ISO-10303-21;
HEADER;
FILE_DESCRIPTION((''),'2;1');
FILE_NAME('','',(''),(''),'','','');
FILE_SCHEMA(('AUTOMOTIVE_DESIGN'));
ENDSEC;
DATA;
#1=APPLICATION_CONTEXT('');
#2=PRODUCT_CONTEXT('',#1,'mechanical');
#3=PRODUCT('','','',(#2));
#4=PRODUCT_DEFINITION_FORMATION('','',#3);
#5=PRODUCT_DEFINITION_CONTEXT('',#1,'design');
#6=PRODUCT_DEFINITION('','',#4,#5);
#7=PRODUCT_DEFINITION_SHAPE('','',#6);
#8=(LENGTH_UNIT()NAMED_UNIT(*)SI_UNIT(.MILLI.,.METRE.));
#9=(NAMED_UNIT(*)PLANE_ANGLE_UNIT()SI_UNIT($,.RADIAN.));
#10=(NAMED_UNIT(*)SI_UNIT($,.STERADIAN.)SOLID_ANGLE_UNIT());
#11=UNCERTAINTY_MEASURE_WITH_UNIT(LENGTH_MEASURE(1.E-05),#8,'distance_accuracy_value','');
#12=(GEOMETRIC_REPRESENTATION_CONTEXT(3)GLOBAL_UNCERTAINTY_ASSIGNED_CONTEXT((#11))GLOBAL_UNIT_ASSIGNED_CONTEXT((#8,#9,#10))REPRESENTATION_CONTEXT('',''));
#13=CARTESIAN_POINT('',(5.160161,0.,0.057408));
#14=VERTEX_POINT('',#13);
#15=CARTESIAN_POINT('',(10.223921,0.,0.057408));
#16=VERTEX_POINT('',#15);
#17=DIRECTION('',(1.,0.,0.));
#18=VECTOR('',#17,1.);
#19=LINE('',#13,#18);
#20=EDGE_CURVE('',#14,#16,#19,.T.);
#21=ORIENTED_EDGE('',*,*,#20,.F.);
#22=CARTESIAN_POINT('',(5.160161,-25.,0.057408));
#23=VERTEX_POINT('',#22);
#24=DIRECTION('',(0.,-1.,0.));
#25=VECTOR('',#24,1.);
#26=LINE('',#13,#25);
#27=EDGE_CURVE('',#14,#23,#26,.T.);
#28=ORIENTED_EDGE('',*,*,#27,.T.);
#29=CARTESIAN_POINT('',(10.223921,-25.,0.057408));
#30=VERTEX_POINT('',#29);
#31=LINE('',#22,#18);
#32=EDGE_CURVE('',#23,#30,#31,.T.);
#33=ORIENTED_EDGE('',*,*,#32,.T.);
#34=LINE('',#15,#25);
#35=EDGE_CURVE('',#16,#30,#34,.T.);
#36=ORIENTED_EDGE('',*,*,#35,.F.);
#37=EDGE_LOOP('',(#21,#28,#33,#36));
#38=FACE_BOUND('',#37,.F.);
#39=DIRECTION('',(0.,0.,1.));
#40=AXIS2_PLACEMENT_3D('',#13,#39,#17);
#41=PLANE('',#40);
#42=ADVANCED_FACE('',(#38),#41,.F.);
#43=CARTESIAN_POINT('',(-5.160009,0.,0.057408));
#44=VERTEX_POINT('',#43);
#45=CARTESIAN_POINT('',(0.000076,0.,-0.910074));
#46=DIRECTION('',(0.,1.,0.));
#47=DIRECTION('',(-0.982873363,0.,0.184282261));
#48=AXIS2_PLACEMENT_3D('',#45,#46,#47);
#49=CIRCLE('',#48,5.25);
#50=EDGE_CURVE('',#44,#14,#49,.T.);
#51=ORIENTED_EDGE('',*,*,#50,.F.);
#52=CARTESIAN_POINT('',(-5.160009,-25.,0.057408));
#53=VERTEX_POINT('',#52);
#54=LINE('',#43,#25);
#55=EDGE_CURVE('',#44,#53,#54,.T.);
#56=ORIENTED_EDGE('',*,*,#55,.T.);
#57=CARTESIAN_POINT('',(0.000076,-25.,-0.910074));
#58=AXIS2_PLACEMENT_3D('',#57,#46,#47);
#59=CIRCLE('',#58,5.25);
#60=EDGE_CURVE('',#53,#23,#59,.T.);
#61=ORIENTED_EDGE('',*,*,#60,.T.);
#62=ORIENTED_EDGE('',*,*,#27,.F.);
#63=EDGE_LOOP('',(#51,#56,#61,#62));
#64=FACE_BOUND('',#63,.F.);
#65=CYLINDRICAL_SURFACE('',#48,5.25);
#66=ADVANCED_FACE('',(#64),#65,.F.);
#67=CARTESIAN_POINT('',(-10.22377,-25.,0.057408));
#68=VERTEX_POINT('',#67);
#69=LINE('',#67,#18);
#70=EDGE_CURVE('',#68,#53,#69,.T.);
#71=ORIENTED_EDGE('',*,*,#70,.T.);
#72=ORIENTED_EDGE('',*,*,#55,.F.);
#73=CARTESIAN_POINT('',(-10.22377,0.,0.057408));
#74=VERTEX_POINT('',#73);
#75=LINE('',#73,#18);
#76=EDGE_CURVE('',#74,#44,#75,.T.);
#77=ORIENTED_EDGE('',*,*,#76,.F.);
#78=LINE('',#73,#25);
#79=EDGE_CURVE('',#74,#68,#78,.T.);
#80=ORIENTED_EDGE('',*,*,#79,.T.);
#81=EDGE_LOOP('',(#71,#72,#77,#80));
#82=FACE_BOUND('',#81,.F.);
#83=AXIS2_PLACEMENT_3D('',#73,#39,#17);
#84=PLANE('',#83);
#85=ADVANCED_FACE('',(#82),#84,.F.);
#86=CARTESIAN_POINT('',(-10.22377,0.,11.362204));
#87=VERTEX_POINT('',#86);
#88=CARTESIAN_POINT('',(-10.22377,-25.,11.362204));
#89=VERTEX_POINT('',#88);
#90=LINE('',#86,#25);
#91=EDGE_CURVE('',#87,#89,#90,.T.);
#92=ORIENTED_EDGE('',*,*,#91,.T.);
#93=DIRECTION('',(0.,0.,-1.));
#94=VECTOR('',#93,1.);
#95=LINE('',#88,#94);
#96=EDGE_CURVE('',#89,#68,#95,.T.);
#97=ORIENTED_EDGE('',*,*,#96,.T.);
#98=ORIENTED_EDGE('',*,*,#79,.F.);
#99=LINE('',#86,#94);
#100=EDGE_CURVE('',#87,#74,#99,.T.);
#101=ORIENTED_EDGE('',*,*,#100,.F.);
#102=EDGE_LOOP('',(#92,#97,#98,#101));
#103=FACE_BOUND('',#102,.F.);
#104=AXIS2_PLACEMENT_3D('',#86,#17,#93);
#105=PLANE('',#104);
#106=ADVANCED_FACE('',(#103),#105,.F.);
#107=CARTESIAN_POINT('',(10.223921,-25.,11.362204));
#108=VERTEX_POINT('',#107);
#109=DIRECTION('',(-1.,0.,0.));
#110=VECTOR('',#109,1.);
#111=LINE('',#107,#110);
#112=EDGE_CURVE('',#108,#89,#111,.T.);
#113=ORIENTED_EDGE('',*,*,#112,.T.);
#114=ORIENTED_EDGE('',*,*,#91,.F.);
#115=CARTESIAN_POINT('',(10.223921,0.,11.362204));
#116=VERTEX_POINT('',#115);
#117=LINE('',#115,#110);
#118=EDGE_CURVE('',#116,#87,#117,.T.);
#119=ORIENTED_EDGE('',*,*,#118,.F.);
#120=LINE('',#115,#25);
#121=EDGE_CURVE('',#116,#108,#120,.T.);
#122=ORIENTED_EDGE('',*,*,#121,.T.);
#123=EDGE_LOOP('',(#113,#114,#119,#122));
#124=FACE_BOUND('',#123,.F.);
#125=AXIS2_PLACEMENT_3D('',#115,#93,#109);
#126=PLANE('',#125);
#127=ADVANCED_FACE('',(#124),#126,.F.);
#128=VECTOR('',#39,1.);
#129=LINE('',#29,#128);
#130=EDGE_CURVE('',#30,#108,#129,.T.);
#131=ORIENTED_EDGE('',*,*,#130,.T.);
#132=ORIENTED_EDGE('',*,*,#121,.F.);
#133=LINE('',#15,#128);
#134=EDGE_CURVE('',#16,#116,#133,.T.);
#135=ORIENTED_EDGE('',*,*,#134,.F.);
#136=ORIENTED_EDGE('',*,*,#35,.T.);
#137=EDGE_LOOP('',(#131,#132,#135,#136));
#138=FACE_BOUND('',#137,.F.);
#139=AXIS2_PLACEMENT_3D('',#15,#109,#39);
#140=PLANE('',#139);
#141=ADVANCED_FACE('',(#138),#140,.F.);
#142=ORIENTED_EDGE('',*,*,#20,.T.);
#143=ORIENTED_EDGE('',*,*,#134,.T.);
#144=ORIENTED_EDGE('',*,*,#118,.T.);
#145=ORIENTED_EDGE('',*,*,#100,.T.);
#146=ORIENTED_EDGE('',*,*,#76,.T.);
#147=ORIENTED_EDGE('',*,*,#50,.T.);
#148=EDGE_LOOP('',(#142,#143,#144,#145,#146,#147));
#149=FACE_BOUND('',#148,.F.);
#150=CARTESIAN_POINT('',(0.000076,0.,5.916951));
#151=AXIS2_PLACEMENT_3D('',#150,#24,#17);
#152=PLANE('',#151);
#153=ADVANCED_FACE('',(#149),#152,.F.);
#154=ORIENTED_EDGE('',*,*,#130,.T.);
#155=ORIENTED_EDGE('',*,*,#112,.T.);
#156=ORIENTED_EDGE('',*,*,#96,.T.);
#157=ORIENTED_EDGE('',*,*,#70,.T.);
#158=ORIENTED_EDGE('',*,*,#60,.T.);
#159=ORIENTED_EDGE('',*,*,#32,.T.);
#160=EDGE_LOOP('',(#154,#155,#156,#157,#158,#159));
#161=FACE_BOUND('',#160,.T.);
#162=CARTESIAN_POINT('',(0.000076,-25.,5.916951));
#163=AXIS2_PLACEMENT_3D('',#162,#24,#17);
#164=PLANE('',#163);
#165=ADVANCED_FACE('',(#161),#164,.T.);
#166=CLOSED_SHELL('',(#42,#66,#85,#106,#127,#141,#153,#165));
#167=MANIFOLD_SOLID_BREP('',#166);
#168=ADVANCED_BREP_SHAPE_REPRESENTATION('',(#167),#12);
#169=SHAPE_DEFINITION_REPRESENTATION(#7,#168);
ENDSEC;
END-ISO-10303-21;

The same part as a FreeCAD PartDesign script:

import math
import FreeCAD as App
import Part
import Sketcher
from FreeCAD import Vector
Q = App.Units.Quantity

doc = App.newDocument("Part")
body = doc.addObject("PartDesign::Body", "Body")

# Sketch on XZ plane
sketch1 = doc.addObject("Sketcher::SketchObject", "Sketch")
body.addObject(sketch1)
sketch1.AttachmentSupport = (doc.XZ_Plane, [""])
sketch1.MapMode = "FlatFace"
sketch1.addGeometry(Part.ArcOfCircle(Part.Circle(Vector(0, -1, 0), Vector(0, 0, 1), 5), math.radians(11), math.radians(169)), False)
sketch1.addGeometry(Part.LineSegment(Vector(5, 0, 0), Vector(10, 0, 0)), False)
sketch1.addGeometry(Part.LineSegment(Vector(10, 0, 0), Vector(10, 11, 0)), False)
sketch1.addGeometry(Part.LineSegment(Vector(10, 11, 0), Vector(-10, 11, 0)), False)
sketch1.addGeometry(Part.LineSegment(Vector(-10, 11, 0), Vector(-10, 0, 0)), False)
sketch1.addGeometry(Part.LineSegment(Vector(-10, 0, 0), Vector(-5, 0, 0)), False)
sketch1.addConstraint(Sketcher.Constraint("Coincident", 0, 1, 1, 1))
sketch1.addConstraint(Sketcher.Constraint("Coincident", 1, 2, 2, 1))
sketch1.addConstraint(Sketcher.Constraint("Coincident", 2, 2, 3, 1))
sketch1.addConstraint(Sketcher.Constraint("Coincident", 3, 2, 4, 1))
sketch1.addConstraint(Sketcher.Constraint("Coincident", 4, 2, 5, 1))
sketch1.addConstraint(Sketcher.Constraint("Coincident", 5, 2, 0, 2))
sketch1.addConstraint(Sketcher.Constraint("Horizontal", 1))
sketch1.addConstraint(Sketcher.Constraint("Vertical", 2))
sketch1.addConstraint(Sketcher.Constraint("Horizontal", 3))
sketch1.addConstraint(Sketcher.Constraint("Vertical", 4))
sketch1.addConstraint(Sketcher.Constraint("Horizontal", 5))
sketch1.addConstraint(Sketcher.Constraint("Horizontal", 1, 2, 4, 2))
sketch1.addConstraint(Sketcher.Constraint("Equal", 1, 5))
sketch1.addConstraint(Sketcher.Constraint("Radius", 0, Q("5.25 mm")))
sketch1.addConstraint(Sketcher.Constraint("DistanceX", 1, 1, 1, 2, Q("5.06376 mm")))
sketch1.addConstraint(Sketcher.Constraint("DistanceX", 3, 2, 3, 1, Q("20.447691 mm")))
sketch1.addConstraint(Sketcher.Constraint("DistanceY", 2, 1, 2, 2, Q("11.304796 mm")))
sketch1.addConstraint(Sketcher.Constraint("DistanceX", -1, 1, 0, 1, Q("5.160161 mm")))
sketch1.addConstraint(Sketcher.Constraint("DistanceY", -1, 1, 0, 1, Q("0.057408 mm")))
pad1 = doc.addObject("PartDesign::Pad", "Pad")
body.addObject(pad1)
pad1.Profile = sketch1
pad1.Length = 25

doc.recompute()
